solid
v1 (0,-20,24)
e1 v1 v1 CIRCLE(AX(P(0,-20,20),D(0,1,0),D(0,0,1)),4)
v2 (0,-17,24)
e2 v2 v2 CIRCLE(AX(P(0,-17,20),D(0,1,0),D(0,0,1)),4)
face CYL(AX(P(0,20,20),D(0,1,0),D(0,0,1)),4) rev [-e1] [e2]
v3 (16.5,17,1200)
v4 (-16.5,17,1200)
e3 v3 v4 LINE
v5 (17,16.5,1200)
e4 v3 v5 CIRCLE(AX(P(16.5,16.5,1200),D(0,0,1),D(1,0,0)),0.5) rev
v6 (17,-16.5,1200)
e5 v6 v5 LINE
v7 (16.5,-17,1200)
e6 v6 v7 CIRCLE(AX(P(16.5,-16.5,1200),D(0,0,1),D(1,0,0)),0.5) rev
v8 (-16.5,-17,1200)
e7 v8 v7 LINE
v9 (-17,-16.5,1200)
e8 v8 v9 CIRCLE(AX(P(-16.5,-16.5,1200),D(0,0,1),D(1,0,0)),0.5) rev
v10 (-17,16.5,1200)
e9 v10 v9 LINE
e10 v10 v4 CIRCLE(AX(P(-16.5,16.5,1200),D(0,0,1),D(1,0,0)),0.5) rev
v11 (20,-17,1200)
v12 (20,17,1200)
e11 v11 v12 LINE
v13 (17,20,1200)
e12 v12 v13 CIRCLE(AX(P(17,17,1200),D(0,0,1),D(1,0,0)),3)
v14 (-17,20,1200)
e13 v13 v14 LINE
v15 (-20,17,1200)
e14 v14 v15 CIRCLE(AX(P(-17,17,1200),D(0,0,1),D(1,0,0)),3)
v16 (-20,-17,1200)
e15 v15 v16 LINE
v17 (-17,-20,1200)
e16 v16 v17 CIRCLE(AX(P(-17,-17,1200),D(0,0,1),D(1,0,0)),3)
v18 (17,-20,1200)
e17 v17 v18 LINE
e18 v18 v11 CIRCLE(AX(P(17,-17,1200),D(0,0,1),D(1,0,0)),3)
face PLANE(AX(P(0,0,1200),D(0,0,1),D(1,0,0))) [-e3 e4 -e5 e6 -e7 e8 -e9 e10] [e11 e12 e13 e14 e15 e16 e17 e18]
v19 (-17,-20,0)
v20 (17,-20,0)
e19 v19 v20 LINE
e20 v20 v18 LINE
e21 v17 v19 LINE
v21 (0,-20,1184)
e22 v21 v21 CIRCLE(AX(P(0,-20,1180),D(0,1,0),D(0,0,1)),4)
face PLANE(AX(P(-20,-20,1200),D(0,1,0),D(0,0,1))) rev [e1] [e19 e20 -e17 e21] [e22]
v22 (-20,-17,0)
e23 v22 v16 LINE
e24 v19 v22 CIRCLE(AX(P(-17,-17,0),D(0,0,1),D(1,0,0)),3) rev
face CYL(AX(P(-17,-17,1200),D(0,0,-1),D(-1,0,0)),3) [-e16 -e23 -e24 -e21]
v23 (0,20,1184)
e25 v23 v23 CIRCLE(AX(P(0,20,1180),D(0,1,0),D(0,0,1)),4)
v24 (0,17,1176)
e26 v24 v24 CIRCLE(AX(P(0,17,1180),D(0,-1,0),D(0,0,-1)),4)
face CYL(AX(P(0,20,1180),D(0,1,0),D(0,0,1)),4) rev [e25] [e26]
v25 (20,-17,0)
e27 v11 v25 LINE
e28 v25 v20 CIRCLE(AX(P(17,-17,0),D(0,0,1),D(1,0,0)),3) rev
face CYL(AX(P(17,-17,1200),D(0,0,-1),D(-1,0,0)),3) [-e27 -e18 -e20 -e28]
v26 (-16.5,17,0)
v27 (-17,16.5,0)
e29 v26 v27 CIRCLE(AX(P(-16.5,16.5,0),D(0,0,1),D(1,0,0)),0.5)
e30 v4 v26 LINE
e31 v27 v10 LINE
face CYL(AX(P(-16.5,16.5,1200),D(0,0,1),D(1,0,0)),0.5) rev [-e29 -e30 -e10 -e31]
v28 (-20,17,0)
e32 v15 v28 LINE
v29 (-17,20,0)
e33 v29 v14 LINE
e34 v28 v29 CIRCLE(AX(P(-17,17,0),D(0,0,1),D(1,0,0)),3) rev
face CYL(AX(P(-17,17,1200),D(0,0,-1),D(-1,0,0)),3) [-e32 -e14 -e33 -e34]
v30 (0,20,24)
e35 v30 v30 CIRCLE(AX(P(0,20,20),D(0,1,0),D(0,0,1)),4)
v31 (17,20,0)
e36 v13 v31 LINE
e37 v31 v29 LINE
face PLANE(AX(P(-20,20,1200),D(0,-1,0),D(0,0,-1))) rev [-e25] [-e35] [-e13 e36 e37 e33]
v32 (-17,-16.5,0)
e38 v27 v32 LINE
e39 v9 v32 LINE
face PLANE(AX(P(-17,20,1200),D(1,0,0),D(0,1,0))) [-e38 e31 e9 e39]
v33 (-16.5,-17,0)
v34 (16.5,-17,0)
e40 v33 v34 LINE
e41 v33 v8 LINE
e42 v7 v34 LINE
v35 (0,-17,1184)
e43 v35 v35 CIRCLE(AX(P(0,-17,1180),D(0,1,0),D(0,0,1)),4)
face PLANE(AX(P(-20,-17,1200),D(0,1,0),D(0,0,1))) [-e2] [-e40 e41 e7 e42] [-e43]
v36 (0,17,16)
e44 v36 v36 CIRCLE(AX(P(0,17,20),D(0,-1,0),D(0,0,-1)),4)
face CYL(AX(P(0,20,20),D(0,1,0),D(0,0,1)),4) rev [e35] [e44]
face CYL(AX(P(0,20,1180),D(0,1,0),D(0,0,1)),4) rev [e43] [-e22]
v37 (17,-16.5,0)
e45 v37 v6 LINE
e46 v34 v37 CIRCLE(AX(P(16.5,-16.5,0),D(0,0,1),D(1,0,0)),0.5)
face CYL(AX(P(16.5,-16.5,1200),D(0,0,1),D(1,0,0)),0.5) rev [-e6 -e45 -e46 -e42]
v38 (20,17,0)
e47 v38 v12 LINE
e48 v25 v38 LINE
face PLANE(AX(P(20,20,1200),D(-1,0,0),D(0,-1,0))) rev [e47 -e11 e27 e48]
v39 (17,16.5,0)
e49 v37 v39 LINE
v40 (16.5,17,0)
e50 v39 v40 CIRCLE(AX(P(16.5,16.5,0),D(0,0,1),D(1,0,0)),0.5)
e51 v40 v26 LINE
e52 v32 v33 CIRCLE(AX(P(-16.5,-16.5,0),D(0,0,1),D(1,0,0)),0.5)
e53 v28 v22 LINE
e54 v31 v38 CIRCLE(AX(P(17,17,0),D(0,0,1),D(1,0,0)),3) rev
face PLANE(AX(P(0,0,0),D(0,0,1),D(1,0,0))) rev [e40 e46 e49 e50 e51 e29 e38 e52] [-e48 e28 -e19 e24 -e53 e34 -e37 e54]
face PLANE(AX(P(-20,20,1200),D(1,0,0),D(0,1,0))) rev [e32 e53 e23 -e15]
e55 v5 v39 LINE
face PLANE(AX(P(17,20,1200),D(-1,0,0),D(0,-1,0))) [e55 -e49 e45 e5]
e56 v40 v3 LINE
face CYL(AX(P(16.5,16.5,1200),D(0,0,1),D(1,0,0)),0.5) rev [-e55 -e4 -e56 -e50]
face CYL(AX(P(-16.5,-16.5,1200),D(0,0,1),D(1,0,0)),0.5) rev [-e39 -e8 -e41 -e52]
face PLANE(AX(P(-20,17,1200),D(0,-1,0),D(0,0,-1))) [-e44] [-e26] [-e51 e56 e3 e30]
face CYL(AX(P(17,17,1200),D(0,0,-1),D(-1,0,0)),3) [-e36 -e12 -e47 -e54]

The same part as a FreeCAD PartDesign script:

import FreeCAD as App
import Part
import Sketcher

V = App.Vector
Q = App.Units.Quantity


def edges_at(feature, points):
    """Names of the edges that pass closest to the given points."""
    edges = feature.Shape.Edges
    near = lambda p: min(range(len(edges)), key=lambda i: edges[i].distToShape(Part.Vertex(*p))[0])
    return sorted({f"Edge{near(p) + 1}" for p in points})

doc = App.newDocument("Part")
body = doc.addObject("PartDesign::Body", "Body")

# Sketch on XY plane
sketch1 = body.newObject("Sketcher::SketchObject", "Sketch")
sketch1.AttachmentSupport = (doc.getObject("XY_Plane"), [""])
sketch1.MapMode = "FlatFace"
sketch1.addGeometry([
    Part.LineSegment(V(-20, 20, 0), V(-20, -20, 0)),  # 0
    Part.LineSegment(V(-20, -20, 0), V(20, -20, 0)),  # 1
    Part.LineSegment(V(20, -20, 0), V(20, 20, 0)),  # 2
    Part.LineSegment(V(20, 20, 0), V(-20, 20, 0)),  # 3
    Part.LineSegment(V(17, -17, 0), V(-17, -17, 0)),  # 4
    Part.LineSegment(V(-17, -17, 0), V(-17, 17, 0)),  # 5
    Part.LineSegment(V(-17, 17, 0), V(17, 17, 0)),  # 6
    Part.LineSegment(V(17, 17, 0), V(17, -17, 0)),  # 7
], False)
sketch1.addConstraint([
    Sketcher.Constraint("Coincident", 0, 2, 1, 1),
    Sketcher.Constraint("Coincident", 1, 2, 2, 1),
    Sketcher.Constraint("Coincident", 2, 2, 3, 1),
    Sketcher.Constraint("Coincident", 3, 2, 0, 1),
    Sketcher.Constraint("Coincident", 4, 2, 5, 1),
    Sketcher.Constraint("Coincident", 5, 2, 6, 1),
    Sketcher.Constraint("Coincident", 6, 2, 7, 1),
    Sketcher.Constraint("Coincident", 7, 2, 4, 1),
    Sketcher.Constraint("Vertical", 0),
    Sketcher.Constraint("Horizontal", 1),
    Sketcher.Constraint("Vertical", 2),
    Sketcher.Constraint("Horizontal", 3),
    Sketcher.Constraint("Horizontal", 4),
    Sketcher.Constraint("Vertical", 5),
    Sketcher.Constraint("Horizontal", 6),
    Sketcher.Constraint("Vertical", 7),
    Sketcher.Constraint("Symmetric", 0, 2, 2, 2, -1, 1),
    Sketcher.Constraint("Symmetric", 4, 2, 6, 2, -1, 1),
    Sketcher.Constraint("Equal", 3, 0),
    Sketcher.Constraint("Equal", 6, 5),
    Sketcher.Constraint("DistanceX", 1, 1, 1, 2, Q("40 mm")),
    Sketcher.Constraint("DistanceX", 4, 2, 4, 1, Q("34 mm")),
])
pad1 = body.newObject("PartDesign::Pad", "Pad")
pad1.Profile = sketch1
pad1.Length = 1200
doc.recompute()

fillet = body.newObject("PartDesign::Fillet", "Fillet")
fillet.Base = (pad1, edges_at(pad1, [
    (17, -17, 600),
    (17, 17, 600),
    (-17, 17, 600),
    (-17, -17, 600),
]))
fillet.Radius = 0.5
doc.recompute()

fillet2 = body.newObject("PartDesign::Fillet", "Fillet001")
fillet2.Base = (fillet, edges_at(fillet, [
    (20, -20, 600),
    (-20, -20, 600),
    (-20, 20, 600),
    (20, 20, 600),
]))
fillet2.Radius = 3

# Sketch on XZ plane
sketch2 = body.newObject("Sketcher::SketchObject", "Sketch001")
sketch2.AttachmentSupport = (doc.getObject("XZ_Plane"), [""])
sketch2.MapMode = "FlatFace"
sketch2.AttachmentOffset = App.Placement(V(0, 0, -20), App.Rotation())
sketch2.addGeometry([
    Part.Circle(V(0, 20, 0), V(0, 0, 1), 4),
    Part.Circle(V(0, 1180, 0), V(0, 0, 1), 4),
], False)
sketch2.addConstraint([
    Sketcher.Constraint("Equal", 0, 1),
    Sketcher.Constraint("PointOnObject", 0, 3, -2),
    Sketcher.Constraint("PointOnObject", 1, 3, -2),
    Sketcher.Constraint("Diameter", 0, Q("8 mm")),
    Sketcher.Constraint("DistanceY", -1, 1, 0, 3, Q("20 mm")),
    Sketcher.Constraint("DistanceY", -1, 1, 1, 3, Q("1180 mm")),
])
doc.recompute()
hole = body.newObject("PartDesign::Hole", "Hole")
hole.Profile = sketch2
hole.ThreadType = "None"
hole.Diameter = 8
hole.DepthType = "ThroughAll"
hole.Reversed = True

doc.recompute()
